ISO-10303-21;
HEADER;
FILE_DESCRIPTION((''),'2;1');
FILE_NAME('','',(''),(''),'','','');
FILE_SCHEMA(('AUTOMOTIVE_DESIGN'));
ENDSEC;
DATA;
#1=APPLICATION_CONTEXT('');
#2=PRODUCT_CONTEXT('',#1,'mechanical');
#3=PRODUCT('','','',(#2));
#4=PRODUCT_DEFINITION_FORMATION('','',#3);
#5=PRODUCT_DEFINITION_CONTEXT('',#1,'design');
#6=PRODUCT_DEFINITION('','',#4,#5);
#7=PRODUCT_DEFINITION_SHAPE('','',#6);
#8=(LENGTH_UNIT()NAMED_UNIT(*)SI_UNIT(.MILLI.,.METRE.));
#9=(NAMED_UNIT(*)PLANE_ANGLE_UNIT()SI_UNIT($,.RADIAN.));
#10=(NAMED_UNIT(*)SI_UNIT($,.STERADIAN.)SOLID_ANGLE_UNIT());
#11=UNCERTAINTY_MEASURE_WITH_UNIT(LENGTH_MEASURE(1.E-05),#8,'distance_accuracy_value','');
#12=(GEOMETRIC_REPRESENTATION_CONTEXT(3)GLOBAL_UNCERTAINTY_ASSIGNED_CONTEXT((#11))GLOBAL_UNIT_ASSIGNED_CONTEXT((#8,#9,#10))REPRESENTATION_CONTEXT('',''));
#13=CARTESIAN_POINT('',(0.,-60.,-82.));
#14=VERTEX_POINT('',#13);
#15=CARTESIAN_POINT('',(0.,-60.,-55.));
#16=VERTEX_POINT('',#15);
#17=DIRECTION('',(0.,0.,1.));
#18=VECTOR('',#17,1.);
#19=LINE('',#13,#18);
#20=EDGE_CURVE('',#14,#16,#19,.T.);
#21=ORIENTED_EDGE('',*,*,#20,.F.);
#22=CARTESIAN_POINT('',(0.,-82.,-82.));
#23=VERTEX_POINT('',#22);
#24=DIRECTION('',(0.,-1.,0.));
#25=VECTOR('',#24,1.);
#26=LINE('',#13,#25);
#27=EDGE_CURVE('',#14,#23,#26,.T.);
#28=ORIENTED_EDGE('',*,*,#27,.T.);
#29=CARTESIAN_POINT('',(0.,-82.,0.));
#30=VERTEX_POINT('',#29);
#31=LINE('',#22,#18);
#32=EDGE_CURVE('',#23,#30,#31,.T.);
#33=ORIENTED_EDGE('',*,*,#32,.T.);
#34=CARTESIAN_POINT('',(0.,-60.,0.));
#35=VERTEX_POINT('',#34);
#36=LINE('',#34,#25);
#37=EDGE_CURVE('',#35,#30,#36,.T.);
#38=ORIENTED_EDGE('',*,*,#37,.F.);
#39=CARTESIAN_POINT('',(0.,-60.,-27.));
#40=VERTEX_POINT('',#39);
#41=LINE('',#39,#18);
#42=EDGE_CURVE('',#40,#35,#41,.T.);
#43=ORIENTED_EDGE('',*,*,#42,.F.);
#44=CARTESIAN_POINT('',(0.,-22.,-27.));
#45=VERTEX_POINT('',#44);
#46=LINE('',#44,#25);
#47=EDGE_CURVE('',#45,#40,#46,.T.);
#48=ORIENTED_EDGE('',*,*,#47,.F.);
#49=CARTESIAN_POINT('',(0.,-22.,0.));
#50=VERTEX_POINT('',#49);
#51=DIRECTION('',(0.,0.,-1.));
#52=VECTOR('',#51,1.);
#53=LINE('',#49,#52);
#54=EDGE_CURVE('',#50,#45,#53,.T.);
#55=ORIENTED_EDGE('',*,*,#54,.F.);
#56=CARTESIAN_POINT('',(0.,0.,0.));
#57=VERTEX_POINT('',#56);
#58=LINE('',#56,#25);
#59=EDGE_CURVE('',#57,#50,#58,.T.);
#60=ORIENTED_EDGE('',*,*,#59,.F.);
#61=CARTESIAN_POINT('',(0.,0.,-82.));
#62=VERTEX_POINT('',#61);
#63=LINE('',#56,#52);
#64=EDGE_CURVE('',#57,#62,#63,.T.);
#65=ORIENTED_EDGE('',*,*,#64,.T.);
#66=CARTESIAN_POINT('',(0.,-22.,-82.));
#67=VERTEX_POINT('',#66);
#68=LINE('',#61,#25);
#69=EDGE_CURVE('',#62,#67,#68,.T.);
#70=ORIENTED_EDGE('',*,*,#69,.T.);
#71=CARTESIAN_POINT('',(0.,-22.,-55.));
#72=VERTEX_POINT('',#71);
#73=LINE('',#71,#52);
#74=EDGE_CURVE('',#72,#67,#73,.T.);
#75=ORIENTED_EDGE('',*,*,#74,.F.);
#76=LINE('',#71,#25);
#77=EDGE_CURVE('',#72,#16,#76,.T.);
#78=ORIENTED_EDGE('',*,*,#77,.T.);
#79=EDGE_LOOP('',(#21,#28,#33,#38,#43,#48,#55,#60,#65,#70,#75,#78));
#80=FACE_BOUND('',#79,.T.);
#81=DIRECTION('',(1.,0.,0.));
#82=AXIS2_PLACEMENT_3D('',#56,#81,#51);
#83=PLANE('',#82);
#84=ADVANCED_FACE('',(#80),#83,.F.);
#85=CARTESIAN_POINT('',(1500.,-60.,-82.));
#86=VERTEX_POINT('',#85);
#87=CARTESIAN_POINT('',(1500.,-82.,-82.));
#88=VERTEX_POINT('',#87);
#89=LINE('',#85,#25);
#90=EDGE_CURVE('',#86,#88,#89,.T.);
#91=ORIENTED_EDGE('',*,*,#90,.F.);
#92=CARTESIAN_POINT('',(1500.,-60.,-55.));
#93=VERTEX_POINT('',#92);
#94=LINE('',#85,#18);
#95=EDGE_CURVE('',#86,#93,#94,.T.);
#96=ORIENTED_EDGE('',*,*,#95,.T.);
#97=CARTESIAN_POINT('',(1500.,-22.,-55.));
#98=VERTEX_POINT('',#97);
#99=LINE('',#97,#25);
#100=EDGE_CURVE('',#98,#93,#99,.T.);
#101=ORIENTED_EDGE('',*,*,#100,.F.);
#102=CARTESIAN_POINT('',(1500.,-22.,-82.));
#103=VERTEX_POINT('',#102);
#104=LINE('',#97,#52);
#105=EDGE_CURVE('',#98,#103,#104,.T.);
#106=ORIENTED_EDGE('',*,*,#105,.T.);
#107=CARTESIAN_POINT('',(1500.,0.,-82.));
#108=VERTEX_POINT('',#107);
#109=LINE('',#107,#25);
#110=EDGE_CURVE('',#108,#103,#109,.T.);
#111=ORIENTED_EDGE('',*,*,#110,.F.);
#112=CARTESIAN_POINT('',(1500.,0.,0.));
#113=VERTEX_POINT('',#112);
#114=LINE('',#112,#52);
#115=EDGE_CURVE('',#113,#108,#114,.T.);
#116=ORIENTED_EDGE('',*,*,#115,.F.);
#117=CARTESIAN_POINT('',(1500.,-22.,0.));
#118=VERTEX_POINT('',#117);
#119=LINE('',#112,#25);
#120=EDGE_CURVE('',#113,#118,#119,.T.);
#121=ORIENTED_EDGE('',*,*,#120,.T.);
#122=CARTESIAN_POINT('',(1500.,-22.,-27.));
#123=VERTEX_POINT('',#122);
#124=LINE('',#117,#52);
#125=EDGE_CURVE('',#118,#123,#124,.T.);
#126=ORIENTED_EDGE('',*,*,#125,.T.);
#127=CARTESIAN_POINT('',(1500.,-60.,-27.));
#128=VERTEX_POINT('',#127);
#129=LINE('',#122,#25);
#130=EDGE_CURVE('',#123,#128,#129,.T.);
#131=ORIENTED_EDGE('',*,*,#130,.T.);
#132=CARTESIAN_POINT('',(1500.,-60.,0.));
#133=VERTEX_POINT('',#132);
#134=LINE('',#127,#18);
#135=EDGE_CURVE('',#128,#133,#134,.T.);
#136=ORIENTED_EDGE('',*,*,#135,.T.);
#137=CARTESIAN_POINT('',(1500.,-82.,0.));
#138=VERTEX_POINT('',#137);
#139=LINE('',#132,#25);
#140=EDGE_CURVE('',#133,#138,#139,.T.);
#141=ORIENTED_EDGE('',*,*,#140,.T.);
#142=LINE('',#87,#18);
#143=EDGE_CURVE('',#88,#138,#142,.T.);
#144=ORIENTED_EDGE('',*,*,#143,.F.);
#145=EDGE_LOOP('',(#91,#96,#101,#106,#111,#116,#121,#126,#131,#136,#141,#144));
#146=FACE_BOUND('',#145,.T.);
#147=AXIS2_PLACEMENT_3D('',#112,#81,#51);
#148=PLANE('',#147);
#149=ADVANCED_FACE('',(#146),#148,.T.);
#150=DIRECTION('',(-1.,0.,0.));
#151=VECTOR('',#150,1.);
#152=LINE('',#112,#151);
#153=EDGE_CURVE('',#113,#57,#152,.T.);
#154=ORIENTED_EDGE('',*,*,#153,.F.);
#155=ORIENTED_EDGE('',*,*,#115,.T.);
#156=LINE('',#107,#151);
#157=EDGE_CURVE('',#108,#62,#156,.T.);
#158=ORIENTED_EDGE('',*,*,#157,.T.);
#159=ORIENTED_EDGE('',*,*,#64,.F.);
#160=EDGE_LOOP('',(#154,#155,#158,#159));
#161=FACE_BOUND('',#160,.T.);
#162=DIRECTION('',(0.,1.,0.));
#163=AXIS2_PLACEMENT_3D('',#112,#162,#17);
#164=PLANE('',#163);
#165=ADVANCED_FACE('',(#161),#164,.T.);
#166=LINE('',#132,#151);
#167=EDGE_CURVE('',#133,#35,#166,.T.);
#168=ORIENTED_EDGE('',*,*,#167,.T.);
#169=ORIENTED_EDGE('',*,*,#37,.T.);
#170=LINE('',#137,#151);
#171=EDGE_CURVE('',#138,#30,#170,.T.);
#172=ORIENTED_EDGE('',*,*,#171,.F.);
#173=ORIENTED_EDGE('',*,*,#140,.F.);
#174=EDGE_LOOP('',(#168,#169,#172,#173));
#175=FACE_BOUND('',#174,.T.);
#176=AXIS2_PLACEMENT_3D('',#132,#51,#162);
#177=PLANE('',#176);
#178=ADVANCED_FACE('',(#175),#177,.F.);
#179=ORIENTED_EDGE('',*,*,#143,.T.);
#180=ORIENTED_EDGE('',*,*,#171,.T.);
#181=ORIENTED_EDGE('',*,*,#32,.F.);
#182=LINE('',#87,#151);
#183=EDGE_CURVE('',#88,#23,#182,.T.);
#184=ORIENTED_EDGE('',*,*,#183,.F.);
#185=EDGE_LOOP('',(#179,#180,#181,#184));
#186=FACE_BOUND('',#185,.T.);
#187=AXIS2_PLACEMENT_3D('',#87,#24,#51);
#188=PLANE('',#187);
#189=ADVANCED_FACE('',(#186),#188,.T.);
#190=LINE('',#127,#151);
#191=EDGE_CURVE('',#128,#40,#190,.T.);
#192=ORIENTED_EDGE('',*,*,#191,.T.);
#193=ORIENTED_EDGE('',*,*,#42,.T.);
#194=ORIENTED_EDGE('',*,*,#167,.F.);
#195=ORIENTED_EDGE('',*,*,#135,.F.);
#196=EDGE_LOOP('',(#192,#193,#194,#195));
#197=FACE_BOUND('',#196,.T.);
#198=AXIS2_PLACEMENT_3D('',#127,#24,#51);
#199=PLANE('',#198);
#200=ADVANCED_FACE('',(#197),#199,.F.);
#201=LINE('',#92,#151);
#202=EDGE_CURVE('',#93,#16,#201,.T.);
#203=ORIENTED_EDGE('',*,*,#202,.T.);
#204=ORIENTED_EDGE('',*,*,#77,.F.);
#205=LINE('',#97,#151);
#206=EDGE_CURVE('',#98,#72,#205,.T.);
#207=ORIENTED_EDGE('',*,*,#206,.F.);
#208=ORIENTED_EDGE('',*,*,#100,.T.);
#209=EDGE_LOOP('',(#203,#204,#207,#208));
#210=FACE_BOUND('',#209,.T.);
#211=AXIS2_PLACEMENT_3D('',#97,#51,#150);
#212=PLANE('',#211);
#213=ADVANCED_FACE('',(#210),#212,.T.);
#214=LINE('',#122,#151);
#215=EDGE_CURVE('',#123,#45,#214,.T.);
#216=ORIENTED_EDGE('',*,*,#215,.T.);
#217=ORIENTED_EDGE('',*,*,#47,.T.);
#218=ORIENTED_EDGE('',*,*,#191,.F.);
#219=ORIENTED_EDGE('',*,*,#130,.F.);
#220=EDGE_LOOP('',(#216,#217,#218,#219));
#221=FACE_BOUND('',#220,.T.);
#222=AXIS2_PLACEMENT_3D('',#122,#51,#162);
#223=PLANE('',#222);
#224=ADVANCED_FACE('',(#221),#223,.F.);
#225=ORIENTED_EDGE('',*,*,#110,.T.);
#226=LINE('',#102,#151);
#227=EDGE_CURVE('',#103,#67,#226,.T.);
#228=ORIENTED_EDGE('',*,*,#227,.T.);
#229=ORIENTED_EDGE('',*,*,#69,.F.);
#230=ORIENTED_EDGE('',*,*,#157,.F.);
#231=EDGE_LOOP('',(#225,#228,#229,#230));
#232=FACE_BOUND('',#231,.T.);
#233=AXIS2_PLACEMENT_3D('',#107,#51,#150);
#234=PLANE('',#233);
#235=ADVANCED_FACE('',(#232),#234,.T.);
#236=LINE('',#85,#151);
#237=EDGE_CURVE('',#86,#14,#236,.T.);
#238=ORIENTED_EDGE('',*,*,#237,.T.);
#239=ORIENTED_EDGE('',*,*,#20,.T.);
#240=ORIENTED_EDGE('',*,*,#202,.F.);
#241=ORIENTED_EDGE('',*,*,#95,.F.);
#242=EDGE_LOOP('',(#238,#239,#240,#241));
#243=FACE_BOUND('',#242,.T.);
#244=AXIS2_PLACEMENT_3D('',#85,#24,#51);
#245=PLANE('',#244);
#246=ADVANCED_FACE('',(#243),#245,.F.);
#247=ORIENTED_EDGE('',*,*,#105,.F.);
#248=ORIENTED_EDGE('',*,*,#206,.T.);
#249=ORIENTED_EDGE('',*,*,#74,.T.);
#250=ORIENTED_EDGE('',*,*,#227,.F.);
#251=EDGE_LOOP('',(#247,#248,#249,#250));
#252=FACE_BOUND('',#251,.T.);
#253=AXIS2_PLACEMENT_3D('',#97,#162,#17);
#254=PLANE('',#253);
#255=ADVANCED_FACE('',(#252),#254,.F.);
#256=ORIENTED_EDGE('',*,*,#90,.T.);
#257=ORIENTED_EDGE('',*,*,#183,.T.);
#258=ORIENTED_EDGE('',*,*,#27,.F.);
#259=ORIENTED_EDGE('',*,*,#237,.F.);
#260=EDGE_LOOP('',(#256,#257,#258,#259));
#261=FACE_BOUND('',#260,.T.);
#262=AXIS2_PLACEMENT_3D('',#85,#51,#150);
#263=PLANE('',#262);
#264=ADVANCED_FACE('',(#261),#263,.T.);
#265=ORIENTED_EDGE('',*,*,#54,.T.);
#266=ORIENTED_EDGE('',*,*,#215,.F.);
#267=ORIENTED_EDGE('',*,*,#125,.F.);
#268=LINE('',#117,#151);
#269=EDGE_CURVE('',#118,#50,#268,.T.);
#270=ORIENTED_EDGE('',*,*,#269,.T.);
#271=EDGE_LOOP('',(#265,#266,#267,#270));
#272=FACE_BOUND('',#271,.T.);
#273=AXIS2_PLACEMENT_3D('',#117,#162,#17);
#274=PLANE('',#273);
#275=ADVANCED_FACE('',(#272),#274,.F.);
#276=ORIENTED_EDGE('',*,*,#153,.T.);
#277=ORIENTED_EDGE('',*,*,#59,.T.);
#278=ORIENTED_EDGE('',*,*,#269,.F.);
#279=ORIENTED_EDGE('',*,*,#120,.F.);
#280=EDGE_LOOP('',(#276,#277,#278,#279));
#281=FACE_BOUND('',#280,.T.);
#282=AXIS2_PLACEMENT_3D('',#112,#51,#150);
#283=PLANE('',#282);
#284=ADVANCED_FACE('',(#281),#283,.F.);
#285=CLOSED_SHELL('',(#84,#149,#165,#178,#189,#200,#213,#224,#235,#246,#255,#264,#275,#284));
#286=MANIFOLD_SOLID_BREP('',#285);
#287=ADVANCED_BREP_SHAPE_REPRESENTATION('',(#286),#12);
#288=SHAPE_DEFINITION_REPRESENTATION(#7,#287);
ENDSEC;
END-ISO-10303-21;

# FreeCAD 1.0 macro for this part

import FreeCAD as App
import Part
import Sketcher
from FreeCAD import Vector

doc = App.newDocument("Part")
params = doc.addObject("Spreadsheet::Sheet", "Params")
for row, (alias, value) in enumerate([
    ("sketch1_width", "22 mm"),
    ("sketch1_width2", "38 mm"),
    ("sketch1_height", "27 mm"),
    ("sketch1_height2", "82 mm"),
    ("pad1_length", "1500 mm"),
], start=1):
    params.set(f"A{row}", alias)
    params.set(f"B{row}", "=" + value)
    params.setAlias(f"B{row}", alias)

body = doc.addObject("PartDesign::Body", "Body")

# Sketch on YZ plane
sketch1 = doc.addObject("Sketcher::SketchObject", "Sketch")
body.addObject(sketch1)
sketch1.AttachmentSupport = (doc.YZ_Plane, [""])
sketch1.MapMode = "FlatFace"
sketch1.addGeometry(Part.LineSegment(Vector(-22, -55, 0), Vector(-22, -82, 0)), False)
sketch1.addGeometry(Part.LineSegment(Vector(-22, -82, 0), Vector(0, -82, 0)), False)
sketch1.addGeometry(Part.LineSegment(Vector(0, -82, 0), Vector(0, 0, 0)), False)
sketch1.addGeometry(Part.LineSegment(Vector(0, 0, 0), Vector(-22, 0, 0)), False)
sketch1.addGeometry(Part.LineSegment(Vector(-22, 0, 0), Vector(-22, -27, 0)), False)
sketch1.addGeometry(Part.LineSegment(Vector(-22, -27, 0), Vector(-60, -27, 0)), False)
sketch1.addGeometry(Part.LineSegment(Vector(-60, -27, 0), Vector(-60, 0, 0)), False)
sketch1.addGeometry(Part.LineSegment(Vector(-60, 0, 0), Vector(-82, 0, 0)), False)
sketch1.addGeometry(Part.LineSegment(Vector(-82, 0, 0), Vector(-82, -82, 0)), False)
sketch1.addGeometry(Part.LineSegment(Vector(-82, -82, 0), Vector(-60, -82, 0)), False)
sketch1.addGeometry(Part.LineSegment(Vector(-60, -82, 0), Vector(-60, -55, 0)), False)
sketch1.addGeometry(Part.LineSegment(Vector(-60, -55, 0), Vector(-22, -55, 0)), False)
sketch1.addConstraint(Sketcher.Constraint("Coincident", 0, 2, 1, 1))
sketch1.addConstraint(Sketcher.Constraint("Coincident", 1, 2, 2, 1))
sketch1.addConstraint(Sketcher.Constraint("Coincident", 2, 2, 3, 1))
sketch1.addConstraint(Sketcher.Constraint("Coincident", 3, 2, 4, 1))
sketch1.addConstraint(Sketcher.Constraint("Coincident", 4, 2, 5, 1))
sketch1.addConstraint(Sketcher.Constraint("Coincident", 5, 2, 6, 1))
sketch1.addConstraint(Sketcher.Constraint("Coincident", 6, 2, 7, 1))
sketch1.addConstraint(Sketcher.Constraint("Coincident", 7, 2, 8, 1))
sketch1.addConstraint(Sketcher.Constraint("Coincident", 8, 2, 9, 1))
sketch1.addConstraint(Sketcher.Constraint("Coincident", 9, 2, 10, 1))
sketch1.addConstraint(Sketcher.Constraint("Coincident", 10, 2, 11, 1))
sketch1.addConstraint(Sketcher.Constraint("Coincident", 11, 2, 0, 1))
sketch1.addConstraint(Sketcher.Constraint("Vertical", 0))
sketch1.addConstraint(Sketcher.Constraint("Horizontal", 1))
sketch1.addConstraint(Sketcher.Constraint("Vertical", 2))
sketch1.addConstraint(Sketcher.Constraint("Horizontal", 3))
sketch1.addConstraint(Sketcher.Constraint("Vertical", 4))
sketch1.addConstraint(Sketcher.Constraint("Horizontal", 5))
sketch1.addConstraint(Sketcher.Constraint("Vertical", 6))
sketch1.addConstraint(Sketcher.Constraint("Horizontal", 7))
sketch1.addConstraint(Sketcher.Constraint("Vertical", 8))
sketch1.addConstraint(Sketcher.Constraint("Horizontal", 9))
sketch1.addConstraint(Sketcher.Constraint("Vertical", 10))
sketch1.addConstraint(Sketcher.Constraint("Horizontal", 11))
sketch1.addConstraint(Sketcher.Constraint("Coincident", 2, 2, -1, 1))
sketch1.addConstraint(Sketcher.Constraint("PointOnObject", 6, 2, -1))
sketch1.addConstraint(Sketcher.Constraint("Horizontal", 1, 2, 8, 2))
sketch1.addConstraint(Sketcher.Constraint("Vertical", 0, 2, 3, 2))
sketch1.addConstraint(Sketcher.Constraint("Vertical", 6, 2, 9, 2))
sketch1.addConstraint(Sketcher.Constraint("Equal", 3, 7))
sketch1.addConstraint(Sketcher.Constraint("Equal", 0, 4))
sketch1.addConstraint(Sketcher.Constraint("DistanceX", 1, 1, 1, 2, 22.0))
sketch1.addConstraint(Sketcher.Constraint("DistanceX", 5, 2, 5, 1, 38.0))
sketch1.addConstraint(Sketcher.Constraint("DistanceY", 0, 2, 0, 1, 27.0))
sketch1.addConstraint(Sketcher.Constraint("DistanceY", 2, 1, 2, 2, 82.0))
sketch1.setExpression("Constraints[31]", "Params.sketch1_width")
sketch1.setExpression("Constraints[32]", "Params.sketch1_width2")
sketch1.setExpression("Constraints[33]", "Params.sketch1_height")
sketch1.setExpression("Constraints[34]", "Params.sketch1_height2")
pad1 = doc.addObject("PartDesign::Pad", "Pad")
body.addObject(pad1)
pad1.Profile = sketch1
pad1.setExpression("Length", "Params.pad1_length")

doc.recompute()
